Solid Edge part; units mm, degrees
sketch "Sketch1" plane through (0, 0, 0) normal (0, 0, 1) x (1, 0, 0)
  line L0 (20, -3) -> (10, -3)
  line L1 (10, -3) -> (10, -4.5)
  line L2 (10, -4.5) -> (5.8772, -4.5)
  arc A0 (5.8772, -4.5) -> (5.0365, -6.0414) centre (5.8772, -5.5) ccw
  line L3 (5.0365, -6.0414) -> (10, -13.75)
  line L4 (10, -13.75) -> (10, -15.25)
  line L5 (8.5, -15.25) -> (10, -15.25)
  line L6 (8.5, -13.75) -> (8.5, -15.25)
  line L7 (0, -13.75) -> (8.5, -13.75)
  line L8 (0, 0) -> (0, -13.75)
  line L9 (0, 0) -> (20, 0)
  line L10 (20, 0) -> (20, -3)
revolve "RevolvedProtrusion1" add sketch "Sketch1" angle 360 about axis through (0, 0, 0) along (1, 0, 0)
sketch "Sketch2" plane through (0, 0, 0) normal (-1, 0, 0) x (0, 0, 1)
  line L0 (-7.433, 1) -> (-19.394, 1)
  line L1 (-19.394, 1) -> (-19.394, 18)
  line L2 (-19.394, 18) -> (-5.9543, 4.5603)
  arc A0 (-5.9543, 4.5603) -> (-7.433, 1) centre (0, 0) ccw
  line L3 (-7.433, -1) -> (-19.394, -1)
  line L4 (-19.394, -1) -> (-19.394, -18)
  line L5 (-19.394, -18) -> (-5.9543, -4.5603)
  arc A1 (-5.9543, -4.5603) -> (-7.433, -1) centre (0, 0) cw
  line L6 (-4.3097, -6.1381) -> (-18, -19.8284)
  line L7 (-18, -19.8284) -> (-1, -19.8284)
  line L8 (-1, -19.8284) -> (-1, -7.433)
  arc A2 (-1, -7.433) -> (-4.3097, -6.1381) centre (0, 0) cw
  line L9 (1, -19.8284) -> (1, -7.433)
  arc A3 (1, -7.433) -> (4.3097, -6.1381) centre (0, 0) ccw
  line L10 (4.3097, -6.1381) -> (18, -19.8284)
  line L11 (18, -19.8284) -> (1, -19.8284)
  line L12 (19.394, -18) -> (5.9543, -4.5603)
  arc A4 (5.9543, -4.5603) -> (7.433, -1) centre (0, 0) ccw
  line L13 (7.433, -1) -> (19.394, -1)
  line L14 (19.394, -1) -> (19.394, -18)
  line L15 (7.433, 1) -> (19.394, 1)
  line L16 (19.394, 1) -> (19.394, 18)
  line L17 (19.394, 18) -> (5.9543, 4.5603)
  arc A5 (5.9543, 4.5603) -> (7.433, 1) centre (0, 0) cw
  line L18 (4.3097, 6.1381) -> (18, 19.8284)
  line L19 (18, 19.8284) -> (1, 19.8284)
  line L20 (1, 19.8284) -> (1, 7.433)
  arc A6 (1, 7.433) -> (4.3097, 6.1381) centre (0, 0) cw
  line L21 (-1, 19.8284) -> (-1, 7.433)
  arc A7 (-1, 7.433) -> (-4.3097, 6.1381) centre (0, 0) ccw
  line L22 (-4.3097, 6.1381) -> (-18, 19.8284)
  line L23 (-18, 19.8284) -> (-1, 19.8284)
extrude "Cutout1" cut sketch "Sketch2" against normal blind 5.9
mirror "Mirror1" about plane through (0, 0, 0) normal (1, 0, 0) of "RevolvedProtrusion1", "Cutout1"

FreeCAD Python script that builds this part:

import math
import FreeCAD as App
import Part
import Sketcher

doc = App.newDocument("Part")
params = doc.addObject("Spreadsheet::Sheet", "Params")
for row, (alias, value) in enumerate([
    ("sketch1_radius", "1 mm"),
    ("sketch1_width", "10 mm"),
    ("sketch1_width2", "20 mm"),
    ("sketch1_height", "3 mm"),
    ("sketch1_width3", "8.5 mm"),
    ("revolution_angle", "360 deg"),
    ("sketch2_radius", "7.5 mm"),
    ("sketch2_width", "17 mm"),
    ("pocket1_length", "5.9 mm"),
], start=1):
    params.set(f"A{row}", alias)
    params.set(f"B{row}", "=" + value)
    params.setAlias(f"B{row}", alias)

body = doc.addObject("PartDesign::Body", "Body")

sketch1 = body.newObject("Sketcher::SketchObject", "Sketch")
sketch1.AttachmentSupport = (doc.getObject("XY_Plane"), [""])
sketch1.MapMode = "FlatFace"
sketch1.addGeometry([
    Part.LineSegment(App.Vector(10, -3, 0), App.Vector(20, -3, 0)),
    Part.LineSegment(App.Vector(20, -3, 0), App.Vector(20, 0, 0)),
    Part.LineSegment(App.Vector(20, 0, 0), App.Vector(0, 0, 0)),
    Part.LineSegment(App.Vector(0, 0, 0), App.Vector(0, -13.8, 0)),
    Part.LineSegment(App.Vector(0, -13.8, 0), App.Vector(8.5, -13.8, 0)),
    Part.LineSegment(App.Vector(8.5, -13.8, 0), App.Vector(8.5, -15.2, 0)),
    Part.LineSegment(App.Vector(8.5, -15.2, 0), App.Vector(10, -15.2, 0)),
    Part.LineSegment(App.Vector(10, -15.2, 0), App.Vector(10, -13.8, 0)),
    Part.LineSegment(App.Vector(10, -13.8, 0), App.Vector(5, -6, 0)),
    Part.ArcOfCircle(Part.Circle(App.Vector(5.9, -5.5, 0), App.Vector(0, 0, 1), 1), math.radians(90), math.radians(213)),
    Part.LineSegment(App.Vector(5.9, -4.5, 0), App.Vector(10, -4.5, 0)),
    Part.LineSegment(App.Vector(10, -4.5, 0), App.Vector(10, -3, 0)),
], False)
sketch1.addConstraint([
    Sketcher.Constraint("Coincident", 0, 2, 1, 1),
    Sketcher.Constraint("Coincident", 1, 2, 2, 1),
    Sketcher.Constraint("Coincident", 2, 2, 3, 1),
    Sketcher.Constraint("Coincident", 3, 2, 4, 1),
    Sketcher.Constraint("Coincident", 4, 2, 5, 1),
    Sketcher.Constraint("Coincident", 5, 2, 6, 1),
    Sketcher.Constraint("Coincident", 6, 2, 7, 1),
    Sketcher.Constraint("Coincident", 7, 2, 8, 1),
    Sketcher.Constraint("Tangent", 8, 2, 9, 2),
    Sketcher.Constraint("Tangent", 9, 1, 10, 1),
    Sketcher.Constraint("Coincident", 10, 2, 11, 1),
    Sketcher.Constraint("Coincident", 11, 2, 0, 1),
    Sketcher.Constraint("Horizontal", 0),
    Sketcher.Constraint("Vertical", 1),
    Sketcher.Constraint("Horizontal", 2),
    Sketcher.Constraint("Vertical", 3),
    Sketcher.Constraint("Horizontal", 4),
    Sketcher.Constraint("Vertical", 5),
    Sketcher.Constraint("Horizontal", 6),
    Sketcher.Constraint("Vertical", 7),
    Sketcher.Constraint("Horizontal", 10),
    Sketcher.Constraint("Vertical", 11),
    Sketcher.Constraint("Coincident", 2, 2, -1, 1),
    Sketcher.Constraint("Horizontal", 4, 2, 7, 2),
    Sketcher.Constraint("Vertical", 7, 2, 10, 2),
    Sketcher.Constraint("Equal", 6, 5),
    Sketcher.Constraint("Equal", 7, 11),
    Sketcher.Constraint("Radius", 9, 1.0),
    Sketcher.Constraint("DistanceX", 0, 1, 0, 2, 10.0),
    Sketcher.Constraint("DistanceX", 2, 2, 2, 1, 20.0),
    Sketcher.Constraint("DistanceY", 1, 1, 1, 2, 3.0),
    Sketcher.Constraint("DistanceX", 4, 1, 4, 2, 8.5),
    Sketcher.Constraint("DistanceY", 3, 2, 3, 1, 13.75),
    Sketcher.Constraint("DistanceX", 10, 1, 10, 2, 4.1228),
])
sketch1.setExpression("Constraints[27]", "Params.sketch1_radius")
sketch1.setExpression("Constraints[28]", "Params.sketch1_width")
sketch1.setExpression("Constraints[29]", "Params.sketch1_width2")
sketch1.setExpression("Constraints[30]", "Params.sketch1_height")
sketch1.setExpression("Constraints[31]", "Params.sketch1_width3")
revolution = body.newObject("PartDesign::Revolution", "Revolution")
revolution.Profile = sketch1
revolution.ReferenceAxis = (sketch1, ["H_Axis"])
revolution.setExpression("Angle", "Params.revolution_angle")

sketch2 = body.newObject("Sketcher::SketchObject", "Sketch001")
sketch2.AttachmentSupport = (doc.getObject("YZ_Plane"), [""])
sketch2.MapMode = "FlatFace"
sketch2.addGeometry([
    Part.LineSegment(App.Vector(1, -19.4, 0), App.Vector(1, -7.4, 0)),
    Part.ArcOfCircle(Part.Circle(App.Vector(0, 0, 0), App.Vector(0, 0, 1), 7.5), math.radians(-82), math.radians(-53)),
    Part.LineSegment(App.Vector(4.6, -6, 0), App.Vector(18, -19.4, 0)),
    Part.LineSegment(App.Vector(18, -19.4, 0), App.Vector(1, -19.4, 0)),
    Part.ArcOfCircle(Part.Circle(App.Vector(0, 0, 0), App.Vector(0, 0, 1), 7.5), math.radians(-127), math.radians(-98)),
    Part.LineSegment(App.Vector(-1, -7.4, 0), App.Vector(-1, -19.4, 0)),
    Part.LineSegment(App.Vector(-1, -19.4, 0), App.Vector(-18, -19.4, 0)),
    Part.LineSegment(App.Vector(-18, -19.4, 0), App.Vector(-4.6, -6, 0)),
    Part.ArcOfCircle(Part.Circle(App.Vector(0, 0, 0), App.Vector(0, 0, 1), 7.5), math.radians(-172), math.radians(-145)),
    Part.LineSegment(App.Vector(-6.1, -4.3, 0), App.Vector(-19.8, -18, 0)),
    Part.LineSegment(App.Vector(-19.8, -18, 0), App.Vector(-19.8, -1, 0)),
    Part.LineSegment(App.Vector(-19.8, -1, 0), App.Vector(-7.4, -1, 0)),
    Part.LineSegment(App.Vector(-7.4, 1, 0), App.Vector(-19.8, 1, 0)),
    Part.LineSegment(App.Vector(-19.8, 1, 0), App.Vector(-19.8, 18, 0)),
    Part.LineSegment(App.Vector(-19.8, 18, 0), App.Vector(-6.1, 4.3, 0)),
    Part.ArcOfCircle(Part.Circle(App.Vector(0, 0, 0), App.Vector(0, 0, 1), 7.5), math.radians(145), math.radians(172)),
    Part.LineSegment(App.Vector(-4.6, 6, 0), App.Vector(-18, 19.4, 0)),
    Part.LineSegment(App.Vector(-18, 19.4, 0), App.Vector(-1, 19.4, 0)),
    Part.LineSegment(App.Vector(-1, 19.4, 0), App.Vector(-1, 7.4, 0)),
    Part.ArcOfCircle(Part.Circle(App.Vector(0, 0, 0), App.Vector(0, 0, 1), 7.5), math.radians(98), math.radians(127)),
    Part.ArcOfCircle(Part.Circle(App.Vector(0, 0, 0), App.Vector(0, 0, 1), 7.5), math.radians(53), math.radians(82)),
    Part.LineSegment(App.Vector(1, 7.4, 0), App.Vector(1, 19.4, 0)),
    Part.LineSegment(App.Vector(1, 19.4, 0), App.Vector(18, 19.4, 0)),
    Part.LineSegment(App.Vector(18, 19.4, 0), App.Vector(4.6, 6, 0)),
    Part.ArcOfCircle(Part.Circle(App.Vector(0, 0, 0), App.Vector(0, 0, 1), 7.5), math.radians(8), math.radians(35)),
    Part.LineSegment(App.Vector(6.1, 4.3, 0), App.Vector(19.8, 18, 0)),
    Part.LineSegment(App.Vector(19.8, 18, 0), App.Vector(19.8, 1, 0)),
    Part.LineSegment(App.Vector(19.8, 1, 0), App.Vector(7.4, 1, 0)),
    Part.LineSegment(App.Vector(7.4, -1, 0), App.Vector(19.8, -1, 0)),
    Part.LineSegment(App.Vector(19.8, -1, 0), App.Vector(19.8, -18, 0)),
    Part.LineSegment(App.Vector(19.8, -18, 0), App.Vector(6.1, -4.3, 0)),
    Part.ArcOfCircle(Part.Circle(App.Vector(0, 0, 0), App.Vector(0, 0, 1), 7.5), math.radians(-35), math.radians(-8)),
], False)
sketch2.addConstraint([
    Sketcher.Constraint("Coincident", 0, 2, 1, 1),
    Sketcher.Constraint("Coincident", 1, 2, 2, 1),
    Sketcher.Constraint("Coincident", 2, 2, 3, 1),
    Sketcher.Constraint("Coincident", 3, 2, 0, 1),
    Sketcher.Constraint("Coincident", 4, 2, 5, 1),
    Sketcher.Constraint("Coincident", 5, 2, 6, 1),
    Sketcher.Constraint("Coincident", 6, 2, 7, 1),
    Sketcher.Constraint("Coincident", 7, 2, 4, 1),
    Sketcher.Constraint("Coincident", 8, 2, 9, 1),
    Sketcher.Constraint("Coincident", 9, 2, 10, 1),
    Sketcher.Constraint("Coincident", 10, 2, 11, 1),
    Sketcher.Constraint("Coincident", 11, 2, 8, 1),
    Sketcher.Constraint("Coincident", 12, 2, 13, 1),
    Sketcher.Constraint("Coincident", 13, 2, 14, 1),
    Sketcher.Constraint("Coincident", 14, 2, 15, 1),
    Sketcher.Constraint("Coincident", 15, 2, 12, 1),
    Sketcher.Constraint("Coincident", 16, 2, 17, 1),
    Sketcher.Constraint("Coincident", 17, 2, 18, 1),
    Sketcher.Constraint("Coincident", 18, 2, 19, 1),
    Sketcher.Constraint("Coincident", 19, 2, 16, 1),
    Sketcher.Constraint("Coincident", 20, 2, 21, 1),
    Sketcher.Constraint("Coincident", 21, 2, 22, 1),
    Sketcher.Constraint("Coincident", 22, 2, 23, 1),
    Sketcher.Constraint("Coincident", 23, 2, 20, 1),
    Sketcher.Constraint("Coincident", 24, 2, 25, 1),
    Sketcher.Constraint("Coincident", 25, 2, 26, 1),
    Sketcher.Constraint("Coincident", 26, 2, 27, 1),
    Sketcher.Constraint("Coincident", 27, 2, 24, 1),
    Sketcher.Constraint("Coincident", 28, 2, 29, 1),
    Sketcher.Constraint("Coincident", 29, 2, 30, 1),
    Sketcher.Constraint("Coincident", 30, 2, 31, 1),
    Sketcher.Constraint("Coincident", 31, 2, 28, 1),
    Sketcher.Constraint("Vertical", 0),
    Sketcher.Constraint("Horizontal", 3),
    Sketcher.Constraint("Vertical", 5),
    Sketcher.Constraint("Horizontal", 6),
    Sketcher.Constraint("Vertical", 10),
    Sketcher.Constraint("Horizontal", 11),
    Sketcher.Constraint("Horizontal", 12),
    Sketcher.Constraint("Vertical", 13),
    Sketcher.Constraint("Horizontal", 17),
    Sketcher.Constraint("Vertical", 18),
    Sketcher.Constraint("Vertical", 21),
    Sketcher.Constraint("Horizontal", 22),
    Sketcher.Constraint("Vertical", 26),
    Sketcher.Constraint("Horizontal", 27),
    Sketcher.Constraint("Horizontal", 28),
    Sketcher.Constraint("Vertical", 29),
    Sketcher.Constraint("Coincident", 1, 3, -1, 1),
    Sketcher.Constraint("Coincident", 4, 3, -1, 1),
    Sketcher.Constraint("Coincident", 8, 3, -1, 1),
    Sketcher.Constraint("Coincident", 15, 3, -1, 1),
    Sketcher.Constraint("Coincident", 19, 3, -1, 1),
    Sketcher.Constraint("Coincident", 20, 3, -1, 1),
    Sketcher.Constraint("Coincident", 24, 3, -1, 1),
    Sketcher.Constraint("Coincident", 31, 3, -1, 1),
    Sketcher.Constraint("Equal", 1, 4),
    Sketcher.Constraint("Equal", 4, 8),
    Sketcher.Constraint("Equal", 8, 15),
    Sketcher.Constraint("Equal", 15, 19),
    Sketcher.Constraint("Equal", 19, 20),
    Sketcher.Constraint("Equal", 20, 24),
    Sketcher.Constraint("Equal", 24, 31),
    Sketcher.Constraint("Symmetric", 2, 2, 16, 2, -1, 1),
    Sketcher.Constraint("Symmetric", 5, 2, 21, 2, -1, 1),
    Sketcher.Constraint("Symmetric", 9, 2, 25, 2, -1, 1),
    Sketcher.Constraint("Symmetric", 12, 2, 28, 2, -1, 1),
    Sketcher.Constraint("Symmetric", 3, 2, 5, 2, -2),
    Sketcher.Constraint("Symmetric", 13, 2, 25, 2, -2),
    Sketcher.Constraint("Perpendicular", 2, 7),
    Sketcher.Constraint("Parallel", 7, 9),
    Sketcher.Constraint("Perpendicular", 9, 14),
    Sketcher.Constraint("Parallel", 14, 16),
    Sketcher.Constraint("Perpendicular", 16, 23),
    Sketcher.Constraint("Parallel", 23, 25),
    Sketcher.Constraint("Perpendicular", 25, 30),
    Sketcher.Constraint("Horizontal", 1, 2, 7, 2),
    Sketcher.Constraint("Horizontal", 18, 2, 20, 2),
    Sketcher.Constraint("Horizontal", 19, 2, 23, 2),
    Sketcher.Constraint("Horizontal", 14, 2, 24, 2),
    Sketcher.Constraint("Horizontal", 15, 2, 26, 2),
    Sketcher.Constraint("Horizontal", 11, 2, 28, 2),
    Sketcher.Constraint("Horizontal", 9, 2, 29, 2),
    Sketcher.Constraint("Equal", 22, 10),
    Sketcher.Constraint("Radius", 1, 7.5),
    Sketcher.Constraint("DistanceX", 3, 2, 3, 1, 17.0),
    Sketcher.Constraint("DistanceX", -1, 1, 0, 2, 1.0),
    Sketcher.Constraint("DistanceY", 9, 2, -1, 1, 18.0),
    Sketcher.Constraint("DistanceY", 0, 1, 0, 2, 11.961),
    Sketcher.Constraint("Distance", 9, 19.361),
])
sketch2.setExpression("Constraints[84]", "Params.sketch2_radius")
sketch2.setExpression("Constraints[85]", "Params.sketch2_width")
pocket1 = body.newObject("PartDesign::Pocket", "Pocket")
pocket1.Profile = sketch2
pocket1.setExpression("Length", "Params.pocket1_length")
pocket1.Reversed = True
doc.recompute()

mirrored = body.newObject("PartDesign::Mirrored", "Mirrored")
mirrored.Originals = [revolution, pocket1]
mirrored.MirrorPlane = (doc.getObject("YZ_Plane"), [""])
body.Tip = mirrored

doc.recompute()
